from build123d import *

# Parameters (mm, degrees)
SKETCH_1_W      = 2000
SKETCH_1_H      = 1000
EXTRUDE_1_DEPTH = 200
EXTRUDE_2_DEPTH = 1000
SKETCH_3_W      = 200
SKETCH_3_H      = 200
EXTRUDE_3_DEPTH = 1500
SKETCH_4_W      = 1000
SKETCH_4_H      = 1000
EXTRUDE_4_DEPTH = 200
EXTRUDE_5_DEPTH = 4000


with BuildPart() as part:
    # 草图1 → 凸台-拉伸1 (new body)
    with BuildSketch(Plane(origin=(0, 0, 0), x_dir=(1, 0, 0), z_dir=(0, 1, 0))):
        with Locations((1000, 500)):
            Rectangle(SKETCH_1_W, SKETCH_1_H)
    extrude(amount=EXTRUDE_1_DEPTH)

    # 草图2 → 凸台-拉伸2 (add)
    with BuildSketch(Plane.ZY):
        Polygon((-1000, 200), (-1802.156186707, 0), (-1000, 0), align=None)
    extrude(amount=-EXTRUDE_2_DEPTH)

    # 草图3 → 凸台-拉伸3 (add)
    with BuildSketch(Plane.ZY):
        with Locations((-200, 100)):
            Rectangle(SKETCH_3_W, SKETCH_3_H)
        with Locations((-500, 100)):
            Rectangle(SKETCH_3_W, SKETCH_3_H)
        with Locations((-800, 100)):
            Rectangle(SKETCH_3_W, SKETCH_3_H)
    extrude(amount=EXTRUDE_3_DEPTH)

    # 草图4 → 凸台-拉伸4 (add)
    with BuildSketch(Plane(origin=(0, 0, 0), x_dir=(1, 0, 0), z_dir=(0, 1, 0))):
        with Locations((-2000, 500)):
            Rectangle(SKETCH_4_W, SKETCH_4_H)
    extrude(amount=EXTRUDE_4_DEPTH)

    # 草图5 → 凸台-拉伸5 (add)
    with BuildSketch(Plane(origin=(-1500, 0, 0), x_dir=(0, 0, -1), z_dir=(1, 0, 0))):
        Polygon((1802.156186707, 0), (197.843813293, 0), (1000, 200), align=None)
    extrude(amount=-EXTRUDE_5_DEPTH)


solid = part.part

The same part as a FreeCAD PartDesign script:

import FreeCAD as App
import Part
import Sketcher

V = App.Vector
Q = App.Units.Quantity

doc = App.newDocument("Part")
body = doc.addObject("PartDesign::Body", "Body")

# Sketch on XZ plane
sketch1 = body.newObject("Sketcher::SketchObject", "Sketch")
sketch1.AttachmentSupport = (doc.getObject("XZ_Plane"), [""])
sketch1.MapMode = "FlatFace"
sketch1.addGeometry(Part.LineSegment(V(0, -1000, 0), V(0, 0, 0)), False)
sketch1.addGeometry(Part.LineSegment(V(0, 0, 0), V(2000, 0, 0)), False)
sketch1.addGeometry(Part.LineSegment(V(2000, 0, 0), V(2000, -1000, 0)), False)
sketch1.addGeometry(Part.LineSegment(V(2000, -1000, 0), V(0, -1000, 0)), False)
sketch1.addConstraint(Sketcher.Constraint("Coincident", 0, 2, 1, 1))
sketch1.addConstraint(Sketcher.Constraint("Coincident", 1, 2, 2, 1))
sketch1.addConstraint(Sketcher.Constraint("Coincident", 2, 2, 3, 1))
sketch1.addConstraint(Sketcher.Constraint("Coincident", 3, 2, 0, 1))
sketch1.addConstraint(Sketcher.Constraint("Vertical", 0))
sketch1.addConstraint(Sketcher.Constraint("Horizontal", 1))
sketch1.addConstraint(Sketcher.Constraint("Vertical", 2))
sketch1.addConstraint(Sketcher.Constraint("Horizontal", 3))
sketch1.addConstraint(Sketcher.Constraint("Coincident", 0, 2, -1, 1))
sketch1.addConstraint(Sketcher.Constraint("DistanceX", 1, 1, 1, 2, Q("2000 mm")))
sketch1.addConstraint(Sketcher.Constraint("DistanceY", 0, 1, 0, 2, Q("1000 mm")))
pad1 = body.newObject("PartDesign::Pad", "Pad")
pad1.Profile = sketch1
pad1.Length = 200
pad1.Reversed = True

# Sketch on YZ plane
sketch2 = body.newObject("Sketcher::SketchObject", "Sketch001")
sketch2.AttachmentSupport = (doc.getObject("YZ_Plane"), [""])
sketch2.MapMode = "FlatFace"
sketch2.addGeometry(Part.LineSegment(V(200, -1000, 0), V(0, -1802, 0)), False)
sketch2.addGeometry(Part.LineSegment(V(0, -1802, 0), V(0, -1000, 0)), False)
sketch2.addGeometry(Part.LineSegment(V(0, -1000, 0), V(200, -1000, 0)), False)
sketch2.addConstraint(Sketcher.Constraint("Coincident", 0, 2, 1, 1))
sketch2.addConstraint(Sketcher.Constraint("Coincident", 1, 2, 2, 1))
sketch2.addConstraint(Sketcher.Constraint("Coincident", 2, 2, 0, 1))
sketch2.addConstraint(Sketcher.Constraint("Vertical", 1))
sketch2.addConstraint(Sketcher.Constraint("Horizontal", 2))
sketch2.addConstraint(Sketcher.Constraint("PointOnObject", 0, 2, -2))
sketch2.addConstraint(Sketcher.Constraint("DistanceX", 2, 1, 2, 2, Q("200 mm")))
sketch2.addConstraint(Sketcher.Constraint("Angle", 0, Q("-104 deg")))
sketch2.addConstraint(Sketcher.Constraint("DistanceY", 1, 2, -1, 1, Q("1000 mm")))
pad2 = body.newObject("PartDesign::Pad", "Pad001")
pad2.Profile = sketch2
pad2.Length = 1000

# Sketch on YZ plane
sketch3 = body.newObject("Sketcher::SketchObject", "Sketch002")
sketch3.AttachmentSupport = (doc.getObject("YZ_Plane"), [""])
sketch3.MapMode = "FlatFace"
sketch3.addGeometry(Part.LineSegment(V(200, -300, 0), V(0, -300, 0)), False)
sketch3.addGeometry(Part.LineSegment(V(0, -300, 0), V(0, -100, 0)), False)
sketch3.addGeometry(Part.LineSegment(V(0, -100, 0), V(200, -100, 0)), False)
sketch3.addGeometry(Part.LineSegment(V(200, -100, 0), V(200, -300, 0)), False)
sketch3.addGeometry(Part.LineSegment(V(200, -600, 0), V(0, -600, 0)), False)
sketch3.addGeometry(Part.LineSegment(V(0, -600, 0), V(0, -400, 0)), False)
sketch3.addGeometry(Part.LineSegment(V(0, -400, 0), V(200, -400, 0)), False)
sketch3.addGeometry(Part.LineSegment(V(200, -400, 0), V(200, -600, 0)), False)
sketch3.addGeometry(Part.LineSegment(V(200, -900, 0), V(0, -900, 0)), False)
sketch3.addGeometry(Part.LineSegment(V(0, -900, 0), V(0, -700, 0)), False)
sketch3.addGeometry(Part.LineSegment(V(0, -700, 0), V(200, -700, 0)), False)
sketch3.addGeometry(Part.LineSegment(V(200, -700, 0), V(200, -900, 0)), False)
sketch3.addConstraint(Sketcher.Constraint("Coincident", 0, 2, 1, 1))
sketch3.addConstraint(Sketcher.Constraint("Coincident", 1, 2, 2, 1))
sketch3.addConstraint(Sketcher.Constraint("Coincident", 2, 2, 3, 1))
sketch3.addConstraint(Sketcher.Constraint("Coincident", 3, 2, 0, 1))
sketch3.addConstraint(Sketcher.Constraint("Coincident", 4, 2, 5, 1))
sketch3.addConstraint(Sketcher.Constraint("Coincident", 5, 2, 6, 1))
sketch3.addConstraint(Sketcher.Constraint("Coincident", 6, 2, 7, 1))
sketch3.addConstraint(Sketcher.Constraint("Coincident", 7, 2, 4, 1))
sketch3.addConstraint(Sketcher.Constraint("Coincident", 8, 2, 9, 1))
sketch3.addConstraint(Sketcher.Constraint("Coincident", 9, 2, 10, 1))
sketch3.addConstraint(Sketcher.Constraint("Coincident", 10, 2, 11, 1))
sketch3.addConstraint(Sketcher.Constraint("Coincident", 11, 2, 8, 1))
sketch3.addConstraint(Sketcher.Constraint("Horizontal", 0))
sketch3.addConstraint(Sketcher.Constraint("Vertical", 1))
sketch3.addConstraint(Sketcher.Constraint("Horizontal", 2))
sketch3.addConstraint(Sketcher.Constraint("Vertical", 3))
sketch3.addConstraint(Sketcher.Constraint("Horizontal", 4))
sketch3.addConstraint(Sketcher.Constraint("Vertical", 5))
sketch3.addConstraint(Sketcher.Constraint("Horizontal", 6))
sketch3.addConstraint(Sketcher.Constraint("Vertical", 7))
sketch3.addConstraint(Sketcher.Constraint("Horizontal", 8))
sketch3.addConstraint(Sketcher.Constraint("Vertical", 9))
sketch3.addConstraint(Sketcher.Constraint("Horizontal", 10))
sketch3.addConstraint(Sketcher.Constraint("Vertical", 11))
sketch3.addConstraint(Sketcher.Constraint("PointOnObject", 0, 2, -2))
sketch3.addConstraint(Sketcher.Constraint("PointOnObject", 4, 2, -2))
sketch3.addConstraint(Sketcher.Constraint("PointOnObject", 8, 2, -2))
sketch3.addConstraint(Sketcher.Constraint("Vertical", 3, 2, 6, 2))
sketch3.addConstraint(Sketcher.Constraint("Vertical", 7, 2, 10, 2))
sketch3.addConstraint(Sketcher.Constraint("Equal", 10, 1))
sketch3.addConstraint(Sketcher.Constraint("Equal", 3, 5))
sketch3.addConstraint(Sketcher.Constraint("Equal", 7, 9))
sketch3.addConstraint(Sketcher.Constraint("DistanceX", 0, 2, 0, 1, Q("200 mm")))
sketch3.addConstraint(Sketcher.Constraint("DistanceY", 0, 2, -1, 1, Q("300 mm")))
sketch3.addConstraint(Sketcher.Constraint("DistanceY", 4, 2, -1, 1, Q("600 mm")))
sketch3.addConstraint(Sketcher.Constraint("DistanceY", 8, 2, -1, 1, Q("900 mm")))
pad3 = body.newObject("PartDesign::Pad", "Pad002")
pad3.Profile = sketch3
pad3.Length = 1500
pad3.Reversed = True

# Sketch on XZ plane
sketch4 = body.newObject("Sketcher::SketchObject", "Sketch003")
sketch4.AttachmentSupport = (doc.getObject("XZ_Plane"), [""])
sketch4.MapMode = "FlatFace"
sketch4.addGeometry(Part.LineSegment(V(-2500, -1000, 0), V(-2500, 0, 0)), False)
sketch4.addGeometry(Part.LineSegment(V(-2500, 0, 0), V(-1500, 0, 0)), False)
sketch4.addGeometry(Part.LineSegment(V(-1500, 0, 0), V(-1500, -1000, 0)), False)
sketch4.addGeometry(Part.LineSegment(V(-1500, -1000, 0), V(-2500, -1000, 0)), False)
sketch4.addConstraint(Sketcher.Constraint("Coincident", 0, 2, 1, 1))
sketch4.addConstraint(Sketcher.Constraint("Coincident", 1, 2, 2, 1))
sketch4.addConstraint(Sketcher.Constraint("Coincident", 2, 2, 3, 1))
sketch4.addConstraint(Sketcher.Constraint("Coincident", 3, 2, 0, 1))
sketch4.addConstraint(Sketcher.Constraint("Vertical", 0))
sketch4.addConstraint(Sketcher.Constraint("Horizontal", 1))
sketch4.addConstraint(Sketcher.Constraint("Vertical", 2))
sketch4.addConstraint(Sketcher.Constraint("Horizontal", 3))
sketch4.addConstraint(Sketcher.Constraint("PointOnObject", 0, 2, -1))
sketch4.addConstraint(Sketcher.Constraint("Equal", 3, 0))
sketch4.addConstraint(Sketcher.Constraint("DistanceX", 1, 1, 1, 2, Q("1000 mm")))
sketch4.addConstraint(Sketcher.Constraint("DistanceX", 0, 2, -1, 1, Q("2500 mm")))
pad4 = body.newObject("PartDesign::Pad", "Pad003")
pad4.Profile = sketch4
pad4.Length = 200
pad4.Reversed = True

# Sketch on YZ plane
sketch5 = body.newObject("Sketcher::SketchObject", "Sketch004")
sketch5.AttachmentSupport = (doc.getObject("YZ_Plane"), [""])
sketch5.MapMode = "FlatFace"
sketch5.AttachmentOffset = App.Placement(V(0, 0, -1500), App.Rotation())
sketch5.addGeometry(Part.LineSegment(V(0, -198, 0), V(0, -1802, 0)), False)
sketch5.addGeometry(Part.LineSegment(V(0, -1802, 0), V(200, -1000, 0)), False)
sketch5.addGeometry(Part.LineSegment(V(200, -1000, 0), V(0, -198, 0)), False)
sketch5.addConstraint(Sketcher.Constraint("Coincident", 0, 2, 1, 1))
sketch5.addConstraint(Sketcher.Constraint("Coincident", 1, 2, 2, 1))
sketch5.addConstraint(Sketcher.Constraint("Coincident", 2, 2, 0, 1))
sketch5.addConstraint(Sketcher.Constraint("Vertical", 0))
sketch5.addConstraint(Sketcher.Constraint("PointOnObject", 0, 2, -2))
sketch5.addConstraint(Sketcher.Constraint("Equal", 1, 2))
sketch5.addConstraint(Sketcher.Constraint("Angle", 1, Q("76 deg")))
sketch5.addConstraint(Sketcher.Constraint("DistanceX", -1, 1, 1, 2, Q("200 mm")))
sketch5.addConstraint(Sketcher.Constraint("DistanceY", 1, 2, -1, 1, Q("1000 mm")))
pad5 = body.newObject("PartDesign::Pad", "Pad004")
pad5.Profile = sketch5
pad5.Length = 4000
pad5.Reversed = True

doc.recompute()
